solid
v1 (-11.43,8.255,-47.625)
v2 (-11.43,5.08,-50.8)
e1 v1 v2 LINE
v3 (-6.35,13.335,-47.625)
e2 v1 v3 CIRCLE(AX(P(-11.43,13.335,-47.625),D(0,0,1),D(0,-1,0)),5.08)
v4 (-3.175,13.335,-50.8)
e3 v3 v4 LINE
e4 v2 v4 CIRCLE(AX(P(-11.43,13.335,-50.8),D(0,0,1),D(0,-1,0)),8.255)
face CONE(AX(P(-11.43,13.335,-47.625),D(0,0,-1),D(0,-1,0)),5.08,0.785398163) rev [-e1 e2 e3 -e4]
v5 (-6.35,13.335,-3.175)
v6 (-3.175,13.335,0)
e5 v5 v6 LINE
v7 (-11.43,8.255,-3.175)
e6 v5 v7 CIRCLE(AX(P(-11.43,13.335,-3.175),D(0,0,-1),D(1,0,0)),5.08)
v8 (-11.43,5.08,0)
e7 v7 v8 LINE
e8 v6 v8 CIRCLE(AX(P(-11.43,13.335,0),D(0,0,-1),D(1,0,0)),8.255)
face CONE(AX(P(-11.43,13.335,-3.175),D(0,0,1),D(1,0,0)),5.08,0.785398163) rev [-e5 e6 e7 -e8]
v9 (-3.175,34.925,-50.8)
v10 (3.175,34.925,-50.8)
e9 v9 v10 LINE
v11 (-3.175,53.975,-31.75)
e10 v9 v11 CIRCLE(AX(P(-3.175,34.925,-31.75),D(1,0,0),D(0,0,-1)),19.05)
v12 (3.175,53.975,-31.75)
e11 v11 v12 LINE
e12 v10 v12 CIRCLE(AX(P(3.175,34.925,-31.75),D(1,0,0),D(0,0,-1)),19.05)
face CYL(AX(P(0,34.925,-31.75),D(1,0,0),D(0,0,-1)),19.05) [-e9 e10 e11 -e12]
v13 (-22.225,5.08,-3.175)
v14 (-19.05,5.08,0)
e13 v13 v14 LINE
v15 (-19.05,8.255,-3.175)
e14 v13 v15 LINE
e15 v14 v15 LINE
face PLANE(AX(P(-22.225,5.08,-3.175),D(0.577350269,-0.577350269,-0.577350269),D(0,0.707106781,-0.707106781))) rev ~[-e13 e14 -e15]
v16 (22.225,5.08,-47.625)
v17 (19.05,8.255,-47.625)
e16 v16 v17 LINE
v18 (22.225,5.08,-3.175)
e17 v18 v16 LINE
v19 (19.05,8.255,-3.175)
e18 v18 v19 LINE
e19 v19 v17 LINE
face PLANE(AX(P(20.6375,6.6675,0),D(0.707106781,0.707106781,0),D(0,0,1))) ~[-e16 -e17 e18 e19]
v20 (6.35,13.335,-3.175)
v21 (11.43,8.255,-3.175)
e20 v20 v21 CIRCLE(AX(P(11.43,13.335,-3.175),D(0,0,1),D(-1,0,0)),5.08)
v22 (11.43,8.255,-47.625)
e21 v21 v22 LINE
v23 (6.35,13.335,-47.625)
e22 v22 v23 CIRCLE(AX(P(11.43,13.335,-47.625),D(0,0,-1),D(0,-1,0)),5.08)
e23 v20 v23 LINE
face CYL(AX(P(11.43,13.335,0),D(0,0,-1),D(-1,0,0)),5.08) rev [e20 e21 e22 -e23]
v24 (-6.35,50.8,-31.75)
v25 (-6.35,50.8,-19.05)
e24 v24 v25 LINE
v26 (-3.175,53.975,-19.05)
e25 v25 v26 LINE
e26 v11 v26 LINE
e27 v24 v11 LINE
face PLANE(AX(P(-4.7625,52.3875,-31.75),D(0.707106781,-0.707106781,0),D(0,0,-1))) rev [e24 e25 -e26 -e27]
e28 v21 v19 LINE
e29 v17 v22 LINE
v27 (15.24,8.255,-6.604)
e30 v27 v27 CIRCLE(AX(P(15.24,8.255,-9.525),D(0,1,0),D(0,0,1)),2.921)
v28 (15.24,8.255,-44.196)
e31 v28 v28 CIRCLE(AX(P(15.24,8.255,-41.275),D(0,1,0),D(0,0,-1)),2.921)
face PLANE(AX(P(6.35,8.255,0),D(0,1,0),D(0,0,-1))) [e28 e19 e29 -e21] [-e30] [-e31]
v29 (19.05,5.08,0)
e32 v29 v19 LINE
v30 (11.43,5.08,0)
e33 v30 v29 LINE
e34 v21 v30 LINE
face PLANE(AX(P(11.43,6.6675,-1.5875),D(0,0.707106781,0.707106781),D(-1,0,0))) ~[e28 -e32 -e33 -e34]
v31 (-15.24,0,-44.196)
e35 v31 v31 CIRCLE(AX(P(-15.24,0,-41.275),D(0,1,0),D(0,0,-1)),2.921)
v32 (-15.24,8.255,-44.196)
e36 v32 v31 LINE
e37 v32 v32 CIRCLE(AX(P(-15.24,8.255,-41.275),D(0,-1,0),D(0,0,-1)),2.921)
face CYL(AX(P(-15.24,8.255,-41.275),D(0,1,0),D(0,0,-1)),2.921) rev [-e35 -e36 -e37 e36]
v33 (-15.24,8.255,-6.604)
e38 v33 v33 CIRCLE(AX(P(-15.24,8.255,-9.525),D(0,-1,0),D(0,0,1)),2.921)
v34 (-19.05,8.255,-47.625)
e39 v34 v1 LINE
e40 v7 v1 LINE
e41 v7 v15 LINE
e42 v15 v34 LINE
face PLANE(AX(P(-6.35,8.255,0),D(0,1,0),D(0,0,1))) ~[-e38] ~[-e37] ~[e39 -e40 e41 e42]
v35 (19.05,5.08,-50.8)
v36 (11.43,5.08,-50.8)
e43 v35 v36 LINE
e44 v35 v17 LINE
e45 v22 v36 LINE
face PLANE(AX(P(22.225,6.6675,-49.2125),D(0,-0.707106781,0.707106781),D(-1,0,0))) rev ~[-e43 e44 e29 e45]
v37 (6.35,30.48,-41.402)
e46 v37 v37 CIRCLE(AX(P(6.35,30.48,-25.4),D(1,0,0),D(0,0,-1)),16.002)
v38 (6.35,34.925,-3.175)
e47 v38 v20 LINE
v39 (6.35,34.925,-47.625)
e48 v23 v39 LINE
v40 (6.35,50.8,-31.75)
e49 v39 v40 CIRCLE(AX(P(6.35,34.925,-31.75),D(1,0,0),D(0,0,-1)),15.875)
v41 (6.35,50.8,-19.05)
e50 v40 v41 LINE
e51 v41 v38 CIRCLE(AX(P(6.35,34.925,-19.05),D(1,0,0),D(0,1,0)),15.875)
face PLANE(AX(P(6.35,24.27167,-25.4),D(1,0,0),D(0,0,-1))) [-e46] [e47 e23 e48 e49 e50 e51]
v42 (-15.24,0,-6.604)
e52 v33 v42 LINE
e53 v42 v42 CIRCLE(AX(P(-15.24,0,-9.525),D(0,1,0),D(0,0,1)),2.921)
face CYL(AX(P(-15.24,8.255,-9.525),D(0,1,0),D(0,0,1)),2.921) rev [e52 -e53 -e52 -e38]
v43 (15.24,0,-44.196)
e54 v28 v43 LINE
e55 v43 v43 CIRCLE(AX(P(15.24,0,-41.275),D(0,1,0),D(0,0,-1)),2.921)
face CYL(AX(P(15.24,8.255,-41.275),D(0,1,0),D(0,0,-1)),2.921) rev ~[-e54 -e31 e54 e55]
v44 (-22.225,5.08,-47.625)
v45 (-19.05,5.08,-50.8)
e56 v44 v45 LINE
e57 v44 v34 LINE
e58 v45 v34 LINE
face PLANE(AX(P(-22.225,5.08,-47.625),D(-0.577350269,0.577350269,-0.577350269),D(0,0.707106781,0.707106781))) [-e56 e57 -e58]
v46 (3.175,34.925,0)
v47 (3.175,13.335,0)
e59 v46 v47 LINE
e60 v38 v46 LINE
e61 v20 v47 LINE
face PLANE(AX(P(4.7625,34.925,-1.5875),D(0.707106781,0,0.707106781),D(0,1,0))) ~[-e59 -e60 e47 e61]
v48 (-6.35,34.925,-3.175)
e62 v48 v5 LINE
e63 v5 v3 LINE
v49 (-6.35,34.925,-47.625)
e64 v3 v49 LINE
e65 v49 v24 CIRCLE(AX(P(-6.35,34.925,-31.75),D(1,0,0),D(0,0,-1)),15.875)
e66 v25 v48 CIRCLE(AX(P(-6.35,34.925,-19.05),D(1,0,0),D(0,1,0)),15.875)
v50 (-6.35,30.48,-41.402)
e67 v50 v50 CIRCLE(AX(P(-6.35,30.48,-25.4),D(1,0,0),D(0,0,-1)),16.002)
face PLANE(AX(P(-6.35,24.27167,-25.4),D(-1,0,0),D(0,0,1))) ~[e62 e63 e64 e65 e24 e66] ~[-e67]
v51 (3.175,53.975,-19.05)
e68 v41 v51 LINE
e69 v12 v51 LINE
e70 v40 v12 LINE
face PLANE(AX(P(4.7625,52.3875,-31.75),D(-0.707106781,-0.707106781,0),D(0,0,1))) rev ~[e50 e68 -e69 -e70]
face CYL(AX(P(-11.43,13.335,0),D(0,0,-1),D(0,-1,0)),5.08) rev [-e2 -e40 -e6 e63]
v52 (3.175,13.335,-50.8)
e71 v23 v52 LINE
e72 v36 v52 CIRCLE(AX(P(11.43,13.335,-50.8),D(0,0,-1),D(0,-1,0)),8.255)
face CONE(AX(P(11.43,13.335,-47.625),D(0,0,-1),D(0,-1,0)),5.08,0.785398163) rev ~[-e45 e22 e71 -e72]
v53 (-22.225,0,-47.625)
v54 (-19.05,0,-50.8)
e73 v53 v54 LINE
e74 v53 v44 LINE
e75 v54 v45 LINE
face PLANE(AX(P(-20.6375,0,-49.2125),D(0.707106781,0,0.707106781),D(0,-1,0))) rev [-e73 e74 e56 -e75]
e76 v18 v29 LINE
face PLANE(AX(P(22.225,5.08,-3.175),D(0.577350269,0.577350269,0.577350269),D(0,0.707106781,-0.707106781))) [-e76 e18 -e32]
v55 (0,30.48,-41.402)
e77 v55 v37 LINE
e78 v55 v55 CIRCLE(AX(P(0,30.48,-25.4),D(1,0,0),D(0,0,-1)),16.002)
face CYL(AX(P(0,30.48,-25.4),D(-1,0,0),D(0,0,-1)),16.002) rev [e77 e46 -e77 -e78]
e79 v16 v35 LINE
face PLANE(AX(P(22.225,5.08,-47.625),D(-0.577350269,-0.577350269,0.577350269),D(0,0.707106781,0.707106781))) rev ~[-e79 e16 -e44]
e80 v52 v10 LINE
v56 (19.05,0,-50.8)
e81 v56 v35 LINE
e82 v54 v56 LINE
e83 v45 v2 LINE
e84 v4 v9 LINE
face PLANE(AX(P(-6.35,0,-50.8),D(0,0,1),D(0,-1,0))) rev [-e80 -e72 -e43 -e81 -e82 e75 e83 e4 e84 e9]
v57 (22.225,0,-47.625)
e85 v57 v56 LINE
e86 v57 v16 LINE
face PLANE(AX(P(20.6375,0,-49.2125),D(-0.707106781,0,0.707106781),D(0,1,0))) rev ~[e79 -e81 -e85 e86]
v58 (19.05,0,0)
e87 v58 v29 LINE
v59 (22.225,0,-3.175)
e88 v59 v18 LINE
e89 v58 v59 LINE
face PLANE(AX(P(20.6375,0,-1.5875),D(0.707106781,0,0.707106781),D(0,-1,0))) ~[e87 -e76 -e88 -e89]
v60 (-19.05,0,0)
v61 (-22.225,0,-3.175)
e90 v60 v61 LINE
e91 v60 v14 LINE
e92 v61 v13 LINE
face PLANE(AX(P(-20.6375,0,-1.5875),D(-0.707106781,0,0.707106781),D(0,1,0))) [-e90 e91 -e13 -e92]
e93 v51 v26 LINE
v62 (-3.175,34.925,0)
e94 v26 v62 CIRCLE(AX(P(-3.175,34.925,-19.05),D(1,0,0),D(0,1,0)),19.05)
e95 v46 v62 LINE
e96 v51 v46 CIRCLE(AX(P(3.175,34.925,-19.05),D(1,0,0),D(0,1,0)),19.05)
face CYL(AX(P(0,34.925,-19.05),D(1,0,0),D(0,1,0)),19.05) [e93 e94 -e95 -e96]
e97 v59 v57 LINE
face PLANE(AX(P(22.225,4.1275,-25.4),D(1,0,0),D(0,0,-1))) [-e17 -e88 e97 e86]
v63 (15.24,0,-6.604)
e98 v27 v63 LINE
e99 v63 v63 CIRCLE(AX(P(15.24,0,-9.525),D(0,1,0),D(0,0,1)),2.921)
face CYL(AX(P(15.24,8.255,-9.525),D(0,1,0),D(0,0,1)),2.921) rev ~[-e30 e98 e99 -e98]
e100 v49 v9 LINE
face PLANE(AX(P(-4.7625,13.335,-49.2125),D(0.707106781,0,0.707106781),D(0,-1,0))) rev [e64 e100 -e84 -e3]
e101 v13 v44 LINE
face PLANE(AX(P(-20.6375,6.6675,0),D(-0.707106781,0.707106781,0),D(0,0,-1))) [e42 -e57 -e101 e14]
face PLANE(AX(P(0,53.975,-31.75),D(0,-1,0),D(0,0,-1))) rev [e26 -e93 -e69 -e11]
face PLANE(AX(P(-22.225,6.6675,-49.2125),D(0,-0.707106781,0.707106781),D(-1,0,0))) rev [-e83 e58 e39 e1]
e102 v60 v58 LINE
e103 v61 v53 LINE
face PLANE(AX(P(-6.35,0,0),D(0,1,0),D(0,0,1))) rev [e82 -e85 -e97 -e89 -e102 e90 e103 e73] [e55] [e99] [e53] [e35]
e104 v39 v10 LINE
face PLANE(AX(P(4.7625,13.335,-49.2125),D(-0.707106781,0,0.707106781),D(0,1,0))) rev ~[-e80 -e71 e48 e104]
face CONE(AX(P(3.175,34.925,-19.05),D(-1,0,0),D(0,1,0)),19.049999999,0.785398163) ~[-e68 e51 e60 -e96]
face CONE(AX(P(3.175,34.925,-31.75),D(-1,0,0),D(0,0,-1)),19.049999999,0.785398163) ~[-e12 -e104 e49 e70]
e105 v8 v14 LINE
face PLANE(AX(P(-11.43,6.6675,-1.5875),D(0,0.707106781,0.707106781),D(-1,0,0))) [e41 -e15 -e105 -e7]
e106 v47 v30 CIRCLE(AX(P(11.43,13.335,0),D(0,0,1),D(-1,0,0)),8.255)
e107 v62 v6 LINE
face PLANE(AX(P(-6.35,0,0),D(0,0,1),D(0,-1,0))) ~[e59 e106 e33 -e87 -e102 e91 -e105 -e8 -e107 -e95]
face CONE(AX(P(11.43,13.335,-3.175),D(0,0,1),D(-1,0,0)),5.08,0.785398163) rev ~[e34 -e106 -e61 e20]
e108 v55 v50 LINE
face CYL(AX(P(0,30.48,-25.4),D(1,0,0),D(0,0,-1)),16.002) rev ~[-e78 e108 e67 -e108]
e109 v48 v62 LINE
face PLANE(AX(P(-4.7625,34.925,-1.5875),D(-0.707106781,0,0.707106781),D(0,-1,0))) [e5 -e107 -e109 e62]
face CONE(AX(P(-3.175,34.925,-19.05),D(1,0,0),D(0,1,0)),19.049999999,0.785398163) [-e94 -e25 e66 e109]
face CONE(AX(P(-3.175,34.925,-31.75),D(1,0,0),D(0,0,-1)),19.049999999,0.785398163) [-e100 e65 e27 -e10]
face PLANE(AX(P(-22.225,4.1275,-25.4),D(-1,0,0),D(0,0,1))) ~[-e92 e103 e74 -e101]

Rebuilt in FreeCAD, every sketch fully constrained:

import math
import FreeCAD as App
import Part
import Sketcher
Q = App.Units.Quantity


def edges_at(feature, points):
    """Names of the edges that pass closest to the given points."""
    edges = feature.Shape.Edges
    near = lambda p: min(range(len(edges)), key=lambda i: edges[i].distToShape(Part.Vertex(*p))[0])
    return sorted({f"Edge{near(p) + 1}" for p in points})

doc = App.newDocument("Part")
body = doc.addObject("PartDesign::Body", "Body")

# Sketch on YZ plane
sketch1 = body.newObject("Sketcher::SketchObject", "Sketch")
sketch1.AttachmentSupport = (doc.getObject("YZ_Plane"), [""])
sketch1.MapMode = "FlatFace"
sketch1.addGeometry([
    Part.LineSegment(App.Vector(0, 0, 0), App.Vector(0, -51, 0)),  # 0
    Part.LineSegment(App.Vector(0, -51, 0), App.Vector(35, -51, 0)),  # 1
    Part.ArcOfCircle(Part.Circle(App.Vector(35, -32, 0), App.Vector(0, 0, 1), 19), math.radians(-90), math.radians(0)),  # 2
    Part.LineSegment(App.Vector(54, -32, 0), App.Vector(54, -19, 0)),  # 3
    Part.ArcOfCircle(Part.Circle(App.Vector(35, -19, 0), App.Vector(0, 0, 1), 19), math.radians(0), math.radians(90)),  # 4
    Part.LineSegment(App.Vector(35, 0, 0), App.Vector(0, 0, 0)),  # 5
    Part.Circle(App.Vector(30, -25, 0), App.Vector(0, 0, 1), 16),  # 6
], False)
sketch1.addConstraint([
    Sketcher.Constraint("Coincident", 0, 2, 1, 1),
    Sketcher.Constraint("Tangent", 1, 2, 2, 1),
    Sketcher.Constraint("Tangent", 2, 2, 3, 1),
    Sketcher.Constraint("Tangent", 3, 2, 4, 1),
    Sketcher.Constraint("Tangent", 4, 2, 5, 1),
    Sketcher.Constraint("Coincident", 5, 2, 0, 1),
    Sketcher.Constraint("Vertical", 0),
    Sketcher.Constraint("Horizontal", 1),
    Sketcher.Constraint("Vertical", 3),
    Sketcher.Constraint("Horizontal", 5),
    Sketcher.Constraint("Coincident", 5, 2, -1, 1),
    Sketcher.Constraint("Equal", 2, 4),
    Sketcher.Constraint("Diameter", 6, Q("1.26 in")),
    Sketcher.Constraint("DistanceY", 0, 2, 0, 1, Q("2 in")),
    Sketcher.Constraint("Radius", 2, Q("0.75 in")),
    Sketcher.Constraint("DistanceY", 6, 3, -1, 1, Q("1 in")),
    Sketcher.Constraint("DistanceX", -1, 1, 6, 3, Q("1.2 in")),
    Sketcher.Constraint("DistanceX", 1, 1, 1, 2, Q("1.375 in")),
])
pad1 = body.newObject("PartDesign::Pad", "Pad")
pad1.Profile = sketch1
pad1.Length = Q("0.25 in")

# Sketch on YZ plane
sketch2 = body.newObject("Sketcher::SketchObject", "Sketch001")
sketch2.AttachmentSupport = (doc.getObject("YZ_Plane"), [""])
sketch2.MapMode = "FlatFace"
sketch2.AttachmentOffset = App.Placement(App.Vector(0, 0, 0.25 * 25.4), App.Rotation())
sketch2.addGeometry([
    Part.LineSegment(App.Vector(8, 0, 0), App.Vector(0, 0, 0)),
    Part.LineSegment(App.Vector(0, 0, 0), App.Vector(0, -51, 0)),
    Part.LineSegment(App.Vector(0, -51, 0), App.Vector(8, -51, 0)),
    Part.LineSegment(App.Vector(8, -51, 0), App.Vector(8, 0, 0)),
], False)
sketch2.addConstraint([
    Sketcher.Constraint("Coincident", 0, 2, 1, 1),
    Sketcher.Constraint("Coincident", 1, 2, 2, 1),
    Sketcher.Constraint("Coincident", 2, 2, 3, 1),
    Sketcher.Constraint("Coincident", 3, 2, 0, 1),
    Sketcher.Constraint("Horizontal", 0),
    Sketcher.Constraint("Vertical", 1),
    Sketcher.Constraint("Horizontal", 2),
    Sketcher.Constraint("Vertical", 3),
    Sketcher.Constraint("Coincident", 0, 2, -1, 1),
    Sketcher.Constraint("DistanceY", 1, 2, 1, 1, Q("2 in")),
    Sketcher.Constraint("DistanceX", 0, 2, 0, 1, Q("0.325 in")),
])
pad2 = body.newObject("PartDesign::Pad", "Pad001")
pad2.Profile = sketch2
pad2.Length = Q("0.625 in")
doc.recompute()

fillet = body.newObject("PartDesign::Fillet", "Fillet")
fillet.Base = (pad2, edges_at(pad2, [(6.35, 8.255, -25.4)]))
fillet.Radius = Q("0.2 in")
doc.recompute()

chamfer = body.newObject("PartDesign::Chamfer", "Chamfer")
chamfer.Base = (fillet, edges_at(fillet, [
    (6.35, 48.395, -45.22),
    (6.35, 53.975, -25.4),
    (16.828, 8.255, 0),
    (6.35, 48.395, -5.58),
    (16.828, 8.255, -50.8),
    (22.225, 4.128, 0),
    (22.225, 4.128, -50.8),
    (22.225, 8.255, -25.4),
    (6.35, 24.13, -50.8),
    (7.838, 9.743, 0),
    (7.838, 9.743, -50.8),
    (6.35, 24.13, 0),
]))
chamfer.Size = Q("0.125 in")

# Sketch on XZ plane
sketch3 = body.newObject("Sketcher::SketchObject", "Sketch002")
sketch3.AttachmentSupport = (doc.getObject("XZ_Plane"), [""])
sketch3.MapMode = "FlatFace"
sketch3.AttachmentOffset = App.Placement(App.Vector(0, 0, -0.325 * 25.4), App.Rotation())
sketch3.addGeometry([
    Part.Circle(App.Vector(15.2, -9.5, 0), App.Vector(0, 0, 1), 2.9),
    Part.Circle(App.Vector(15.2, -41.3, 0), App.Vector(0, 0, 1), 2.9),
], False)
sketch3.addConstraint([
    Sketcher.Constraint("Equal", 0, 1),
    Sketcher.Constraint("Vertical", 0, 3, 1, 3),
    Sketcher.Constraint("Diameter", 0, Q("0.23 in")),
    Sketcher.Constraint("DistanceX", -1, 1, 0, 3, Q("0.6 in")),
    Sketcher.Constraint("DistanceY", 1, 3, 0, 3, Q("1.25 in")),
    Sketcher.Constraint("DistanceY", 0, 3, -1, 1, Q("0.375 in")),
])
pocket1 = body.newObject("PartDesign::Pocket", "Pocket")
pocket1.Profile = sketch3
pocket1.Type = "ThroughAll"
pocket1.Reversed = True
doc.recompute()

mirrored = body.newObject("PartDesign::Mirrored", "Mirrored")
mirrored.Originals = [pad1, pad2, pocket1]
mirrored.MirrorPlane = (doc.getObject("YZ_Plane"), [""])
body.Tip = mirrored
doc.recompute()

fillet2 = body.newObject("PartDesign::Fillet", "Fillet001")
fillet2.Base = (mirrored, edges_at(mirrored, [(-6.35, 8.255, -25.4)]))
fillet2.Radius = Q("0.2 in")
doc.recompute()

chamfer2 = body.newObject("PartDesign::Chamfer", "Chamfer001")
chamfer2.Base = (fillet2, edges_at(fillet2, [
    (-6.35, 48.395, -45.22),
    (-6.35, 53.975, -25.4),
    (-16.828, 8.255, 0),
    (-6.35, 48.395, -5.58),
    (-16.828, 8.255, -50.8),
    (-22.225, 4.128, 0),
    (-22.225, 4.128, -50.8),
    (-22.225, 8.255, -25.4),
    (-6.35, 24.13, -50.8),
    (-7.838, 9.743, 0),
    (-7.838, 9.743, -50.8),
    (-6.35, 24.13, 0),
]))
chamfer2.Size = Q("0.125 in")

doc.recompute()
